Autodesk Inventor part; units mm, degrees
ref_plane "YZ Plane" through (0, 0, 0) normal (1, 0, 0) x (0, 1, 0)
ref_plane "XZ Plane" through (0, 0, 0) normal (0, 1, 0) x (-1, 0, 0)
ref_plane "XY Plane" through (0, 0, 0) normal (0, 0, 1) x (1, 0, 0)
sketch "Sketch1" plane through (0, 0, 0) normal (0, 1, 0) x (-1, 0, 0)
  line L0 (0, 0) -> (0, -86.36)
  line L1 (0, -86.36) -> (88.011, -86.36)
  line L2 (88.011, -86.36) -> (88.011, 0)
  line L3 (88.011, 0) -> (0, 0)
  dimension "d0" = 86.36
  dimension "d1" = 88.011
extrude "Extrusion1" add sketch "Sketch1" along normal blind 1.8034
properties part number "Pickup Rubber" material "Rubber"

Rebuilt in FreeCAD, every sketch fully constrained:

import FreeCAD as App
import Part
import Sketcher
Q = App.Units.Quantity

doc = App.newDocument("Part")
body = doc.addObject("PartDesign::Body", "Body")

# Sketch on XZ plane
sketch1 = body.newObject("Sketcher::SketchObject", "Sketch")
sketch1.AttachmentSupport = (doc.getObject("XZ_Plane"), [""])
sketch1.MapMode = "FlatFace"
sketch1.addGeometry([
    Part.LineSegment(App.Vector(-88, 0, 0), App.Vector(0, 0, 0)),
    Part.LineSegment(App.Vector(0, 0, 0), App.Vector(0, -86, 0)),
    Part.LineSegment(App.Vector(0, -86, 0), App.Vector(-88, -86, 0)),
    Part.LineSegment(App.Vector(-88, -86, 0), App.Vector(-88, 0, 0)),
], False)
sketch1.addConstraint([
    Sketcher.Constraint("Coincident", 0, 2, 1, 1),
    Sketcher.Constraint("Coincident", 1, 2, 2, 1),
    Sketcher.Constraint("Coincident", 2, 2, 3, 1),
    Sketcher.Constraint("Coincident", 3, 2, 0, 1),
    Sketcher.Constraint("Horizontal", 0),
    Sketcher.Constraint("Vertical", 1),
    Sketcher.Constraint("Horizontal", 2),
    Sketcher.Constraint("Vertical", 3),
    Sketcher.Constraint("Coincident", 0, 2, -1, 1),
    Sketcher.Constraint("DistanceY", 1, 2, 1, 1, Q("3.4 in")),
    Sketcher.Constraint("DistanceX", 0, 1, 0, 2, Q("3.465 in")),
])
pad1 = body.newObject("PartDesign::Pad", "Pad")
pad1.Profile = sketch1
pad1.Length = Q("0.071 in")
pad1.Reversed = True

doc.recompute()
